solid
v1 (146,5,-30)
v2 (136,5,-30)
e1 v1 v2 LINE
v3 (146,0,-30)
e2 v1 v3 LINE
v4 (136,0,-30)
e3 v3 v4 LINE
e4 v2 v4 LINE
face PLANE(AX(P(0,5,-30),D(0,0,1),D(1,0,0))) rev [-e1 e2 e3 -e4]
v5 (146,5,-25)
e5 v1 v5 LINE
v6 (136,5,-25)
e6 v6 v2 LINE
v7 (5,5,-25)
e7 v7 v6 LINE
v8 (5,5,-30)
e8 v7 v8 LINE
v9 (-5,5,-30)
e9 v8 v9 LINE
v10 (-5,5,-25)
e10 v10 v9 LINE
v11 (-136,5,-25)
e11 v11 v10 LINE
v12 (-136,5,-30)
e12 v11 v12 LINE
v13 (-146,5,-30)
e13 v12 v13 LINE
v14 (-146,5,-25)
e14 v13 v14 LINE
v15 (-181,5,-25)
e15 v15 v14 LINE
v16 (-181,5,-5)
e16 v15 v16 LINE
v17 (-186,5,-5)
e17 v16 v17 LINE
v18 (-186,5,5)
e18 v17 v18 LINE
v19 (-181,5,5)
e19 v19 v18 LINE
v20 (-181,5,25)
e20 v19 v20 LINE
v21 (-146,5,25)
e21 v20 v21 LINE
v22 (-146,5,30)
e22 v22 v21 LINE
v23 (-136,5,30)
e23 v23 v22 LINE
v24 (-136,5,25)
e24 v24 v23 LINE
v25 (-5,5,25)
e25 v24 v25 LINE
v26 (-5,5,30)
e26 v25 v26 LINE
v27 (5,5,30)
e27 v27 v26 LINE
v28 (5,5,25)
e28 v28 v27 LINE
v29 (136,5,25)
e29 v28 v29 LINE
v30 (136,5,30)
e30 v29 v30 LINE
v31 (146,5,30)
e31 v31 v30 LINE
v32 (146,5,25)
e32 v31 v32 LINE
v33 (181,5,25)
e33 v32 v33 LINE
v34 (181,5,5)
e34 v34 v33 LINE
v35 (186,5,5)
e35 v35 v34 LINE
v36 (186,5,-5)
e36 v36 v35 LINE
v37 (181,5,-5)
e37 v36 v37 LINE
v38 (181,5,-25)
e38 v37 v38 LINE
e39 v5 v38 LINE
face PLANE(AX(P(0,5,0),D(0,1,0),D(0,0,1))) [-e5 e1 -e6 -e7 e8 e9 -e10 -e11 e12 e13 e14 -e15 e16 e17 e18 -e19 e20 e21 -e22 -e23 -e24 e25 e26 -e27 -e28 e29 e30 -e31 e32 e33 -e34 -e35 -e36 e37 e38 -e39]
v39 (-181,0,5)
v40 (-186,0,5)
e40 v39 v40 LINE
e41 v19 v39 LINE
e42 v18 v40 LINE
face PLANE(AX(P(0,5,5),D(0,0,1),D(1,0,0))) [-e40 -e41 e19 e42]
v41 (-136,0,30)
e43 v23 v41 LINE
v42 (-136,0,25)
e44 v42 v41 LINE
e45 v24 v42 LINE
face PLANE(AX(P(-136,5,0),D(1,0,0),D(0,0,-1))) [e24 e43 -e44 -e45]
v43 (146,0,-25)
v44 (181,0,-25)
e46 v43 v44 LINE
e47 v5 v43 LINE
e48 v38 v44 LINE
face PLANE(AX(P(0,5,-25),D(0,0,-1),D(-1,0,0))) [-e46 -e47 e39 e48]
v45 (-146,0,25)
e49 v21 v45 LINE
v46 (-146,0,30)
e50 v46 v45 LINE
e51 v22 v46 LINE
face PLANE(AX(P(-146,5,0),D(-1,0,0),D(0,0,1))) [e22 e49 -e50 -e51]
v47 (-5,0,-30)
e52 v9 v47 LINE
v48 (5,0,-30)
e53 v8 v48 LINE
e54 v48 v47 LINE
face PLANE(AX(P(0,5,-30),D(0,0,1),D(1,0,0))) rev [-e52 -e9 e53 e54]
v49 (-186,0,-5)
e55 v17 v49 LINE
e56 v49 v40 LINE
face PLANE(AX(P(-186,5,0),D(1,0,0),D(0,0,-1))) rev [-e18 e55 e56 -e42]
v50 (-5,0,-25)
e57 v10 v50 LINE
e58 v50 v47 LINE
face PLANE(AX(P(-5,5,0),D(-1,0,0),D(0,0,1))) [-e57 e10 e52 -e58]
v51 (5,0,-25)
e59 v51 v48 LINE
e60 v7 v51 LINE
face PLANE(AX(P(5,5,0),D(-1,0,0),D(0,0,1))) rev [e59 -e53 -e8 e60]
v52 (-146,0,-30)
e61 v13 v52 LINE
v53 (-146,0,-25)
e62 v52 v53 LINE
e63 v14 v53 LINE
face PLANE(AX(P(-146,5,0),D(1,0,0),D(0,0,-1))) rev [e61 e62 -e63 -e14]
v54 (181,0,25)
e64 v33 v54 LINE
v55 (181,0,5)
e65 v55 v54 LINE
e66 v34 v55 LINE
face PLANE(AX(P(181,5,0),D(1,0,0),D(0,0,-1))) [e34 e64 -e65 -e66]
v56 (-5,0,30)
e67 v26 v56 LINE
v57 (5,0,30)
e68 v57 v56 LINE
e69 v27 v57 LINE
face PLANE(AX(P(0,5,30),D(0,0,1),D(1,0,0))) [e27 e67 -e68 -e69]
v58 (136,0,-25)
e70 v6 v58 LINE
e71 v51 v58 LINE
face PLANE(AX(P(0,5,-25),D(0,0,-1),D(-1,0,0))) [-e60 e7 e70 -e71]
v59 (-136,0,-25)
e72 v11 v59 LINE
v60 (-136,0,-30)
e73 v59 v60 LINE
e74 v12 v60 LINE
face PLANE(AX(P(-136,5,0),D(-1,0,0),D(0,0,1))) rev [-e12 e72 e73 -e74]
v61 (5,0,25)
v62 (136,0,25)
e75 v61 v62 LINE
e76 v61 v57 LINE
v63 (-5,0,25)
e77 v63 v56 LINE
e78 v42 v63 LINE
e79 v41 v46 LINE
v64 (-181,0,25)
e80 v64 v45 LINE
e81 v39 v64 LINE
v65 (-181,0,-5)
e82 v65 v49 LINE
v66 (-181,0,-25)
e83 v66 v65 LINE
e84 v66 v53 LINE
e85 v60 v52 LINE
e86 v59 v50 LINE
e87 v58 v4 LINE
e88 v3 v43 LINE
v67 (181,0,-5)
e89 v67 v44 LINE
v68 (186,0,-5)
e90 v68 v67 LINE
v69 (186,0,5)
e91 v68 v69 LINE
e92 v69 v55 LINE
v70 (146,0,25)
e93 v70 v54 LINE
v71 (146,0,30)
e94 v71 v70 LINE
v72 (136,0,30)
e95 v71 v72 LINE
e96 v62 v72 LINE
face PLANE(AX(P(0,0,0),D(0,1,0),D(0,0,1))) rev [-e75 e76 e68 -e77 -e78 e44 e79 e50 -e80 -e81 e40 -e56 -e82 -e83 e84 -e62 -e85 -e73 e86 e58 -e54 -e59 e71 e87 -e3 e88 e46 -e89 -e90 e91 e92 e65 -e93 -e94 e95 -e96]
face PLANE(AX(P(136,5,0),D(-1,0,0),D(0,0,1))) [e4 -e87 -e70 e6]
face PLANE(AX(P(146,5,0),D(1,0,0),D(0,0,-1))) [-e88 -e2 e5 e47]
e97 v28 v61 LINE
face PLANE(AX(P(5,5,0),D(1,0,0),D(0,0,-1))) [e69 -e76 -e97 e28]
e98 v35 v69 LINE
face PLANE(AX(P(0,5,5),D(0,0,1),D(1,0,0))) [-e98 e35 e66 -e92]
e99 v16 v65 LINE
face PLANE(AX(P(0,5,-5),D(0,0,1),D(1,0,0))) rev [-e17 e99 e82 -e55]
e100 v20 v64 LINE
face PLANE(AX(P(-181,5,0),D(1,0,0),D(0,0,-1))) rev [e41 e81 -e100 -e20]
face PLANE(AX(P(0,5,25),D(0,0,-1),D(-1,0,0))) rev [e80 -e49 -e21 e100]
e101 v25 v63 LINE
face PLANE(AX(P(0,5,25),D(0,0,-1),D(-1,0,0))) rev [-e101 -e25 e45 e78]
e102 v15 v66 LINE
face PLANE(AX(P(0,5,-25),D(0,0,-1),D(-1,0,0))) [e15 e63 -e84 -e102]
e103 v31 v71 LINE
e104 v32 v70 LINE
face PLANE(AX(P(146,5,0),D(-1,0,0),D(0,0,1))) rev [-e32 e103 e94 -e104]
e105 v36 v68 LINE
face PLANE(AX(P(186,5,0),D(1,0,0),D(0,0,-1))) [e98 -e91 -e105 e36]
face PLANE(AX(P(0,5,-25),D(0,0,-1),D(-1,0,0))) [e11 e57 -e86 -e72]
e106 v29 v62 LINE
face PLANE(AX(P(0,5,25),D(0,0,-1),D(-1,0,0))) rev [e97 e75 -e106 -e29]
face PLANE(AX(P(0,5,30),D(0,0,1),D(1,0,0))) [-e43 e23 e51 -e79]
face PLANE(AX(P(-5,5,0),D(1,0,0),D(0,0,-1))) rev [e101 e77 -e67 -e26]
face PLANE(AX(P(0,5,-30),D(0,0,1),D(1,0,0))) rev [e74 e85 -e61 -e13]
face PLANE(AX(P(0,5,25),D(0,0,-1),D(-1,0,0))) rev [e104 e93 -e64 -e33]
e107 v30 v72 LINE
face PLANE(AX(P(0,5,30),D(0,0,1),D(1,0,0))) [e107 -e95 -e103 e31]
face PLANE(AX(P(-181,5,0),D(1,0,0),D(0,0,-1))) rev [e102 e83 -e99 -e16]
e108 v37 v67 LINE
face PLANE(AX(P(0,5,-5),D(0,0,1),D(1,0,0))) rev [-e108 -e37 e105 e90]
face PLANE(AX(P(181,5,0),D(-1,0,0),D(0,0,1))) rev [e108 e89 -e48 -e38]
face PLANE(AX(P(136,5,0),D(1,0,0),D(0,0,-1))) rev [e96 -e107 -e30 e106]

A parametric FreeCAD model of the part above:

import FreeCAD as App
import Part
import Sketcher
Q = App.Units.Quantity

doc = App.newDocument("Part")
params = doc.addObject("Spreadsheet::Sheet", "Params")
for row, (alias, value) in enumerate([
    ("sketch1_width", "5 mm"),
    ("sketch1_width2", "35 mm"),
    ("sketch1_width3", "10 mm"),
    ("sketch1_width4", "131 mm"),
    ("sketch1_height", "20 mm"),
    ("pad1_length", "5 mm"),
], start=1):
    params.set(f"A{row}", alias)
    params.set(f"B{row}", "=" + value)
    params.setAlias(f"B{row}", alias)

body = doc.addObject("PartDesign::Body", "Body")

# Sketch on XZ plane
sketch1 = body.newObject("Sketcher::SketchObject", "Sketch")
sketch1.AttachmentSupport = (doc.getObject("XZ_Plane"), [""])
sketch1.MapMode = "FlatFace"
sketch1.addGeometry(Part.LineSegment(App.Vector(-181, -25, 0), App.Vector(-181, -5, 0)), False)
sketch1.addGeometry(Part.LineSegment(App.Vector(-181, -5, 0), App.Vector(-186, -5, 0)), False)
sketch1.addGeometry(Part.LineSegment(App.Vector(-186, -5, 0), App.Vector(-186, 5, 0)), False)
sketch1.addGeometry(Part.LineSegment(App.Vector(-186, 5, 0), App.Vector(-181, 5, 0)), False)
sketch1.addGeometry(Part.LineSegment(App.Vector(-181, 5, 0), App.Vector(-181, 25, 0)), False)
sketch1.addGeometry(Part.LineSegment(App.Vector(-181, 25, 0), App.Vector(-146, 25, 0)), False)
sketch1.addGeometry(Part.LineSegment(App.Vector(-146, 25, 0), App.Vector(-146, 30, 0)), False)
sketch1.addGeometry(Part.LineSegment(App.Vector(-146, 30, 0), App.Vector(-136, 30, 0)), False)
sketch1.addGeometry(Part.LineSegment(App.Vector(-136, 30, 0), App.Vector(-136, 25, 0)), False)
sketch1.addGeometry(Part.LineSegment(App.Vector(-136, 25, 0), App.Vector(-5, 25, 0)), False)
sketch1.addGeometry(Part.LineSegment(App.Vector(-5, 25, 0), App.Vector(-5, 30, 0)), False)
sketch1.addGeometry(Part.LineSegment(App.Vector(-5, 30, 0), App.Vector(5, 30, 0)), False)
sketch1.addGeometry(Part.LineSegment(App.Vector(5, 30, 0), App.Vector(5, 25, 0)), False)
sketch1.addGeometry(Part.LineSegment(App.Vector(5, 25, 0), App.Vector(136, 25, 0)), False)
sketch1.addGeometry(Part.LineSegment(App.Vector(136, 25, 0), App.Vector(136, 30, 0)), False)
sketch1.addGeometry(Part.LineSegment(App.Vector(136, 30, 0), App.Vector(146, 30, 0)), False)
sketch1.addGeometry(Part.LineSegment(App.Vector(146, 30, 0), App.Vector(146, 25, 0)), False)
sketch1.addGeometry(Part.LineSegment(App.Vector(146, 25, 0), App.Vector(181, 25, 0)), False)
sketch1.addGeometry(Part.LineSegment(App.Vector(181, 25, 0), App.Vector(181, 5, 0)), False)
sketch1.addGeometry(Part.LineSegment(App.Vector(181, 5, 0), App.Vector(186, 5, 0)), False)
sketch1.addGeometry(Part.LineSegment(App.Vector(186, 5, 0), App.Vector(186, -5, 0)), False)
sketch1.addGeometry(Part.LineSegment(App.Vector(186, -5, 0), App.Vector(181, -5, 0)), False)
sketch1.addGeometry(Part.LineSegment(App.Vector(181, -5, 0), App.Vector(181, -25, 0)), False)
sketch1.addGeometry(Part.LineSegment(App.Vector(181, -25, 0), App.Vector(146, -25, 0)), False)
sketch1.addGeometry(Part.LineSegment(App.Vector(146, -25, 0), App.Vector(146, -30, 0)), False)
sketch1.addGeometry(Part.LineSegment(App.Vector(146, -30, 0), App.Vector(136, -30, 0)), False)
sketch1.addGeometry(Part.LineSegment(App.Vector(136, -30, 0), App.Vector(136, -25, 0)), False)
sketch1.addGeometry(Part.LineSegment(App.Vector(136, -25, 0), App.Vector(5, -25, 0)), False)
sketch1.addGeometry(Part.LineSegment(App.Vector(5, -25, 0), App.Vector(5, -30, 0)), False)
sketch1.addGeometry(Part.LineSegment(App.Vector(5, -30, 0), App.Vector(-5, -30, 0)), False)
sketch1.addGeometry(Part.LineSegment(App.Vector(-5, -30, 0), App.Vector(-5, -25, 0)), False)
sketch1.addGeometry(Part.LineSegment(App.Vector(-5, -25, 0), App.Vector(-136, -25, 0)), False)
sketch1.addGeometry(Part.LineSegment(App.Vector(-136, -25, 0), App.Vector(-136, -30, 0)), False)
sketch1.addGeometry(Part.LineSegment(App.Vector(-136, -30, 0), App.Vector(-146, -30, 0)), False)
sketch1.addGeometry(Part.LineSegment(App.Vector(-146, -30, 0), App.Vector(-146, -25, 0)), False)
sketch1.addGeometry(Part.LineSegment(App.Vector(-146, -25, 0), App.Vector(-181, -25, 0)), False)
sketch1.addConstraint(Sketcher.Constraint("Coincident", 0, 2, 1, 1))
sketch1.addConstraint(Sketcher.Constraint("Coincident", 1, 2, 2, 1))
sketch1.addConstraint(Sketcher.Constraint("Coincident", 2, 2, 3, 1))
sketch1.addConstraint(Sketcher.Constraint("Coincident", 3, 2, 4, 1))
sketch1.addConstraint(Sketcher.Constraint("Coincident", 4, 2, 5, 1))
sketch1.addConstraint(Sketcher.Constraint("Coincident", 5, 2, 6, 1))
sketch1.addConstraint(Sketcher.Constraint("Coincident", 6, 2, 7, 1))
sketch1.addConstraint(Sketcher.Constraint("Coincident", 7, 2, 8, 1))
sketch1.addConstraint(Sketcher.Constraint("Coincident", 8, 2, 9, 1))
sketch1.addConstraint(Sketcher.Constraint("Coincident", 9, 2, 10, 1))
sketch1.addConstraint(Sketcher.Constraint("Coincident", 10, 2, 11, 1))
sketch1.addConstraint(Sketcher.Constraint("Coincident", 11, 2, 12, 1))
sketch1.addConstraint(Sketcher.Constraint("Coincident", 12, 2, 13, 1))
sketch1.addConstraint(Sketcher.Constraint("Coincident", 13, 2, 14, 1))
sketch1.addConstraint(Sketcher.Constraint("Coincident", 14, 2, 15, 1))
sketch1.addConstraint(Sketcher.Constraint("Coincident", 15, 2, 16, 1))
sketch1.addConstraint(Sketcher.Constraint("Coincident", 16, 2, 17, 1))
sketch1.addConstraint(Sketcher.Constraint("Coincident", 17, 2, 18, 1))
sketch1.addConstraint(Sketcher.Constraint("Coincident", 18, 2, 19, 1))
sketch1.addConstraint(Sketcher.Constraint("Coincident", 19, 2, 20, 1))
sketch1.addConstraint(Sketcher.Constraint("Coincident", 20, 2, 21, 1))
sketch1.addConstraint(Sketcher.Constraint("Coincident", 21, 2, 22, 1))
sketch1.addConstraint(Sketcher.Constraint("Coincident", 22, 2, 23, 1))
sketch1.addConstraint(Sketcher.Constraint("Coincident", 23, 2, 24, 1))
sketch1.addConstraint(Sketcher.Constraint("Coincident", 24, 2, 25, 1))
sketch1.addConstraint(Sketcher.Constraint("Coincident", 25, 2, 26, 1))
sketch1.addConstraint(Sketcher.Constraint("Coincident", 26, 2, 27, 1))
sketch1.addConstraint(Sketcher.Constraint("Coincident", 27, 2, 28, 1))
sketch1.addConstraint(Sketcher.Constraint("Coincident", 28, 2, 29, 1))
sketch1.addConstraint(Sketcher.Constraint("Coincident", 29, 2, 30, 1))
sketch1.addConstraint(Sketcher.Constraint("Coincident", 30, 2, 31, 1))
sketch1.addConstraint(Sketcher.Constraint("Coincident", 31, 2, 32, 1))
sketch1.addConstraint(Sketcher.Constraint("Coincident", 32, 2, 33, 1))
sketch1.addConstraint(Sketcher.Constraint("Coincident", 33, 2, 34, 1))
sketch1.addConstraint(Sketcher.Constraint("Coincident", 34, 2, 35, 1))
sketch1.addConstraint(Sketcher.Constraint("Coincident", 35, 2, 0, 1))
sketch1.addConstraint(Sketcher.Constraint("Vertical", 0))
sketch1.addConstraint(Sketcher.Constraint("Horizontal", 1))
sketch1.addConstraint(Sketcher.Constraint("Vertical", 2))
sketch1.addConstraint(Sketcher.Constraint("Horizontal", 3))
sketch1.addConstraint(Sketcher.Constraint("Vertical", 4))
sketch1.addConstraint(Sketcher.Constraint("Horizontal", 5))
sketch1.addConstraint(Sketcher.Constraint("Vertical", 6))
sketch1.addConstraint(Sketcher.Constraint("Horizontal", 7))
sketch1.addConstraint(Sketcher.Constraint("Vertical", 8))
sketch1.addConstraint(Sketcher.Constraint("Horizontal", 9))
sketch1.addConstraint(Sketcher.Constraint("Vertical", 10))
sketch1.addConstraint(Sketcher.Constraint("Horizontal", 11))
sketch1.addConstraint(Sketcher.Constraint("Vertical", 12))
sketch1.addConstraint(Sketcher.Constraint("Horizontal", 13))
sketch1.addConstraint(Sketcher.Constraint("Vertical", 14))
sketch1.addConstraint(Sketcher.Constraint("Horizontal", 15))
sketch1.addConstraint(Sketcher.Constraint("Vertical", 16))
sketch1.addConstraint(Sketcher.Constraint("Horizontal", 17))
sketch1.addConstraint(Sketcher.Constraint("Vertical", 18))
sketch1.addConstraint(Sketcher.Constraint("Horizontal", 19))
sketch1.addConstraint(Sketcher.Constraint("Vertical", 20))
sketch1.addConstraint(Sketcher.Constraint("Horizontal", 21))
sketch1.addConstraint(Sketcher.Constraint("Vertical", 22))
sketch1.addConstraint(Sketcher.Constraint("Horizontal", 23))
sketch1.addConstraint(Sketcher.Constraint("Vertical", 24))
sketch1.addConstraint(Sketcher.Constraint("Horizontal", 25))
sketch1.addConstraint(Sketcher.Constraint("Vertical", 26))
sketch1.addConstraint(Sketcher.Constraint("Horizontal", 27))
sketch1.addConstraint(Sketcher.Constraint("Vertical", 28))
sketch1.addConstraint(Sketcher.Constraint("Horizontal", 29))
sketch1.addConstraint(Sketcher.Constraint("Vertical", 30))
sketch1.addConstraint(Sketcher.Constraint("Horizontal", 31))
sketch1.addConstraint(Sketcher.Constraint("Vertical", 32))
sketch1.addConstraint(Sketcher.Constraint("Horizontal", 33))
sketch1.addConstraint(Sketcher.Constraint("Vertical", 34))
sketch1.addConstraint(Sketcher.Constraint("Horizontal", 35))
sketch1.addConstraint(Sketcher.Constraint("Symmetric", 0, 2, 18, 2, -1, 1))
sketch1.addConstraint(Sketcher.Constraint("Symmetric", 2, 2, 20, 2, -1, 1))
sketch1.addConstraint(Sketcher.Constraint("Symmetric", 4, 2, 22, 2, -1, 1))
sketch1.addConstraint(Sketcher.Constraint("Symmetric", 6, 2, 24, 2, -1, 1))
sketch1.addConstraint(Sketcher.Constraint("Symmetric", 8, 2, 26, 2, -1, 1))
sketch1.addConstraint(Sketcher.Constraint("Symmetric", 10, 2, 28, 2, -1, 1))
sketch1.addConstraint(Sketcher.Constraint("Symmetric", 12, 2, 30, 2, -1, 1))
sketch1.addConstraint(Sketcher.Constraint("Symmetric", 14, 2, 32, 2, -1, 1))
sketch1.addConstraint(Sketcher.Constraint("Symmetric", 16, 2, 34, 2, -1, 1))
sketch1.addConstraint(Sketcher.Constraint("Symmetric", 9, 2, 12, 2, -2))
sketch1.addConstraint(Sketcher.Constraint("Symmetric", 7, 2, 14, 2, -2))
sketch1.addConstraint(Sketcher.Constraint("Symmetric", 5, 2, 16, 2, -2))
sketch1.addConstraint(Sketcher.Constraint("Symmetric", 3, 2, 18, 2, -2))
sketch1.addConstraint(Sketcher.Constraint("Horizontal", 5, 2, 8, 2))
sketch1.addConstraint(Sketcher.Constraint("Horizontal", 7, 2, 10, 2))
sketch1.addConstraint(Sketcher.Constraint("Equal", 7, 11))
sketch1.addConstraint(Sketcher.Constraint("Equal", 33, 2))
sketch1.addConstraint(Sketcher.Constraint("Equal", 21, 6))
sketch1.addConstraint(Sketcher.Constraint("DistanceX", 1, 2, 1, 1, Q("5 mm")))
sketch1.addConstraint(Sketcher.Constraint("DistanceX", 5, 1, 5, 2, Q("35 mm")))
sketch1.addConstraint(Sketcher.Constraint("DistanceX", 7, 1, 7, 2, Q("10 mm")))
sketch1.addConstraint(Sketcher.Constraint("DistanceX", 9, 1, 9, 2, Q("131 mm")))
sketch1.addConstraint(Sketcher.Constraint("DistanceY", 0, 1, 0, 2, Q("20 mm")))
sketch1.setExpression("Constraints[90]", "Params.sketch1_width")
sketch1.setExpression("Constraints[91]", "Params.sketch1_width2")
sketch1.setExpression("Constraints[92]", "Params.sketch1_width3")
sketch1.setExpression("Constraints[93]", "Params.sketch1_width4")
sketch1.setExpression("Constraints[94]", "Params.sketch1_height")
pad1 = body.newObject("PartDesign::Pad", "Pad")
pad1.Profile = sketch1
pad1.setExpression("Length", "Params.pad1_length")
pad1.Reversed = True

doc.recompute()
